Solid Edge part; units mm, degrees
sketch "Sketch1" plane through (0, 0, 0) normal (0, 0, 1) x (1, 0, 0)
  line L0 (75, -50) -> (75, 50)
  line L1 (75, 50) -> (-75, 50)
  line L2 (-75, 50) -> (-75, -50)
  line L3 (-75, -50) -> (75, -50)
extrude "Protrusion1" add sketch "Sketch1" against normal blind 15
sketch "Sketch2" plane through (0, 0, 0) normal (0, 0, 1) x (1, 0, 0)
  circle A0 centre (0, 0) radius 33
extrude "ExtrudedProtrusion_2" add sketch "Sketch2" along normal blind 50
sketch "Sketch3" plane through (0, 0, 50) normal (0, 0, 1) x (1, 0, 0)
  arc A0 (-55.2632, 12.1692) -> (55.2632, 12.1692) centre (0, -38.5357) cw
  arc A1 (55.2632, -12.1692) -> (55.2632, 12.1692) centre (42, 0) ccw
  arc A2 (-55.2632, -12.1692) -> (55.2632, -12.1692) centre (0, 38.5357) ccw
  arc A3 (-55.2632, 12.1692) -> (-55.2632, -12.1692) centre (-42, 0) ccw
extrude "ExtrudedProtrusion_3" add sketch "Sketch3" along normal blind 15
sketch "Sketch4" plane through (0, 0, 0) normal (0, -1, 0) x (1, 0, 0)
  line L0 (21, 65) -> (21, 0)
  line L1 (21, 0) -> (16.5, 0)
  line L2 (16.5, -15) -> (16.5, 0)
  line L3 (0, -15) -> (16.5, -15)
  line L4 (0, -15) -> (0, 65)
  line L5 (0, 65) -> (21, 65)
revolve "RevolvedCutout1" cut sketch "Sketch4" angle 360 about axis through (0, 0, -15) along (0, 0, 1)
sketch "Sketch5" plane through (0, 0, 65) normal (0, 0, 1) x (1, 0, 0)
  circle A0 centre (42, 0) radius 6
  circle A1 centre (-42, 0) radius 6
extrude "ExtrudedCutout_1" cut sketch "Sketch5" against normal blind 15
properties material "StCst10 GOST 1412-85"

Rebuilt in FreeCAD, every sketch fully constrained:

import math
import FreeCAD as App
import Part
import Sketcher
Q = App.Units.Quantity


def add_polygon(sketch, points):
    """Adds a closed chain of lines whose ends are joined by coincident constraints."""
    first, n = sketch.GeometryCount, len(points)
    for a, b in zip(points, points[1:] + points[:1]):
        sketch.addGeometry(Part.LineSegment(App.Vector(*a, 0), App.Vector(*b, 0)), False)
    for i in range(n):
        sketch.addConstraint(Sketcher.Constraint("Coincident", first + i, 2, first + (i + 1) % n, 1))

doc = App.newDocument("Part")
body = doc.addObject("PartDesign::Body", "Body")

sketch1 = doc.addObject("Sketcher::SketchObject", "Sketch")
body.addObject(sketch1)
sketch1.AttachmentSupport = (doc.XY_Plane, [""])
sketch1.MapMode = "FlatFace"
add_polygon(sketch1, [(-75, -50), (75, -50), (75, 50), (-75, 50)])
sketch1.addConstraint([
    Sketcher.Constraint("Horizontal", 0),
    Sketcher.Constraint("Vertical", 1),
    Sketcher.Constraint("Horizontal", 2),
    Sketcher.Constraint("Vertical", 3),
    Sketcher.Constraint("Symmetric", 0, 2, 2, 2, -1, 1),
    Sketcher.Constraint("DistanceX", 0, 1, 0, 2, Q("150 mm")),
    Sketcher.Constraint("DistanceY", 1, 1, 1, 2, Q("100 mm")),
])
pad1 = doc.addObject("PartDesign::Pad", "Pad")
body.addObject(pad1)
pad1.Profile = sketch1
pad1.Length = 15
pad1.Reversed = True

sketch2 = doc.addObject("Sketcher::SketchObject", "Sketch001")
body.addObject(sketch2)
sketch2.AttachmentSupport = (doc.XY_Plane, [""])
sketch2.MapMode = "FlatFace"
sketch2.addGeometry(Part.Circle(App.Vector(0, 0, 0), App.Vector(0, 0, 1), 33), False)
sketch2.addConstraint([
    Sketcher.Constraint("Coincident", 0, 3, -1, 1),
    Sketcher.Constraint("Diameter", 0, Q("66 mm")),
])
pad2 = doc.addObject("PartDesign::Pad", "Pad001")
body.addObject(pad2)
pad2.Profile = sketch2
pad2.Length = 50

sketch3 = doc.addObject("Sketcher::SketchObject", "Sketch002")
body.addObject(sketch3)
sketch3.AttachmentSupport = (doc.XY_Plane, [""])
sketch3.MapMode = "FlatFace"
sketch3.AttachmentOffset = App.Placement(App.Vector(0, 0, 50), App.Rotation())
sketch3.addGeometry([
    Part.ArcOfCircle(Part.Circle(App.Vector(0, -39, 0), App.Vector(0, 0, 1), 75), math.radians(43), math.radians(137)),
    Part.ArcOfCircle(Part.Circle(App.Vector(-42, 0, 0), App.Vector(0, 0, 1), 18), math.radians(137), math.radians(223)),
    Part.ArcOfCircle(Part.Circle(App.Vector(0, 39, 0), App.Vector(0, 0, 1), 75), math.radians(-137), math.radians(-43)),
    Part.ArcOfCircle(Part.Circle(App.Vector(42, 0, 0), App.Vector(0, 0, 1), 18), math.radians(-43), math.radians(43)),
], False)
sketch3.addConstraint([
    Sketcher.Constraint("Tangent", 0, 2, 1, 1),
    Sketcher.Constraint("Tangent", 1, 2, 2, 1),
    Sketcher.Constraint("Tangent", 2, 2, 3, 1),
    Sketcher.Constraint("Tangent", 3, 2, 0, 1),
    Sketcher.Constraint("Equal", 0, 2),
    Sketcher.Constraint("Equal", 1, 3),
    Sketcher.Constraint("Symmetric", 0, 3, 2, 3, -1, 1),
    Sketcher.Constraint("PointOnObject", 0, 3, -2),
    Sketcher.Constraint("Radius", 0, Q("75 mm")),
    Sketcher.Constraint("Radius", 1, Q("18 mm")),
    Sketcher.Constraint("DistanceX", 1, 3, -1, 1, Q("42 mm")),
])
pad3 = doc.addObject("PartDesign::Pad", "Pad002")
body.addObject(pad3)
pad3.Profile = sketch3
pad3.Length = 15

sketch4 = doc.addObject("Sketcher::SketchObject", "Sketch003")
body.addObject(sketch4)
sketch4.AttachmentSupport = (doc.XZ_Plane, [""])
sketch4.MapMode = "FlatFace"
add_polygon(sketch4, [(21, 0), (21, 65), (0, 65), (0, -15), (16.5, -15), (16.5, 0)])
sketch4.addConstraint([
    Sketcher.Constraint("Vertical", 0),
    Sketcher.Constraint("Horizontal", 1),
    Sketcher.Constraint("Vertical", 2),
    Sketcher.Constraint("Horizontal", 3),
    Sketcher.Constraint("Vertical", 4),
    Sketcher.Constraint("Horizontal", 5),
    Sketcher.Constraint("PointOnObject", 1, 2, -2),
    Sketcher.Constraint("PointOnObject", 4, 2, -1),
    Sketcher.Constraint("DistanceX", 1, 2, 1, 1, Q("21 mm")),
    Sketcher.Constraint("DistanceY", 0, 1, 0, 2, Q("65 mm")),
    Sketcher.Constraint("DistanceY", 2, 2, 2, 1, Q("80 mm")),
    Sketcher.Constraint("DistanceX", 3, 1, 3, 2, Q("16.5 mm")),
])
groove = doc.addObject("PartDesign::Groove", "Groove")
body.addObject(groove)
groove.Profile = sketch4
groove.ReferenceAxis = (sketch4, ["V_Axis"])
groove.Angle = 360

sketch5 = doc.addObject("Sketcher::SketchObject", "Sketch004")
body.addObject(sketch5)
sketch5.AttachmentSupport = (doc.XY_Plane, [""])
sketch5.MapMode = "FlatFace"
sketch5.AttachmentOffset = App.Placement(App.Vector(0, 0, 65), App.Rotation())
sketch5.addGeometry([
    Part.Circle(App.Vector(42, 0, 0), App.Vector(0, 0, 1), 6),
    Part.Circle(App.Vector(-42, 0, 0), App.Vector(0, 0, 1), 6),
], False)
sketch5.addConstraint([
    Sketcher.Constraint("Equal", 0, 1),
    Sketcher.Constraint("Symmetric", 0, 3, 1, 3, -1, 1),
    Sketcher.Constraint("PointOnObject", 0, 3, -1),
    Sketcher.Constraint("Diameter", 0, Q("12 mm")),
    Sketcher.Constraint("DistanceX", -1, 1, 0, 3, Q("42 mm")),
])
pocket1 = doc.addObject("PartDesign::Pocket", "Pocket")
body.addObject(pocket1)
pocket1.Profile = sketch5
pocket1.Length = 15

doc.recompute()
